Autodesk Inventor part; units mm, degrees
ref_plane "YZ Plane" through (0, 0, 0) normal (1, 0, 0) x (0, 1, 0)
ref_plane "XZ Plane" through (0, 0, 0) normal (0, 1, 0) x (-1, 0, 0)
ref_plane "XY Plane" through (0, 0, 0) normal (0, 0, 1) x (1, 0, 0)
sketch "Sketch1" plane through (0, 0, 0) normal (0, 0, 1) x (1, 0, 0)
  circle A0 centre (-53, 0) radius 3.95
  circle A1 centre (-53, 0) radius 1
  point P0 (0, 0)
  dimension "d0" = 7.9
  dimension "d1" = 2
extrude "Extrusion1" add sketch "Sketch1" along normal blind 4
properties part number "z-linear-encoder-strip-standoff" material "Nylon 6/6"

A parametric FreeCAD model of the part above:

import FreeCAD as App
import Part
import Sketcher

doc = App.newDocument("Part")
params = doc.addObject("Spreadsheet::Sheet", "Params")
for row, (alias, value) in enumerate([
    ("sketch1_diameter", "2 mm"),
    ("sketch1_diameter2", "7.9 mm"),
    ("pad1_length", "4 mm"),
], start=1):
    params.set(f"A{row}", alias)
    params.set(f"B{row}", "=" + value)
    params.setAlias(f"B{row}", alias)

body = doc.addObject("PartDesign::Body", "Body")

# Sketch on XY plane
sketch1 = body.newObject("Sketcher::SketchObject", "Sketch")
sketch1.AttachmentSupport = (doc.getObject("XY_Plane"), [""])
sketch1.MapMode = "FlatFace"
sketch1.addGeometry(Part.Circle(App.Vector(-53, 0, 0), App.Vector(0, 0, 1), 3.95), False)
sketch1.addGeometry(Part.Circle(App.Vector(-53, 0, 0), App.Vector(0, 0, 1), 1), False)
sketch1.addConstraint(Sketcher.Constraint("Coincident", 1, 3, 0, 3))
sketch1.addConstraint(Sketcher.Constraint("PointOnObject", 0, 3, -1))
sketch1.addConstraint(Sketcher.Constraint("Diameter", 1, 2.0))
sketch1.addConstraint(Sketcher.Constraint("Diameter", 0, 7.9))
sketch1.addConstraint(Sketcher.Constraint("DistanceX", 0, 3, -1, 1, 53.0))
sketch1.setExpression("Constraints[2]", "Params.sketch1_diameter")
sketch1.setExpression("Constraints[3]", "Params.sketch1_diameter2")
pad1 = body.newObject("PartDesign::Pad", "Pad")
pad1.Profile = sketch1
pad1.setExpression("Length", "Params.pad1_length")

doc.recompute()
